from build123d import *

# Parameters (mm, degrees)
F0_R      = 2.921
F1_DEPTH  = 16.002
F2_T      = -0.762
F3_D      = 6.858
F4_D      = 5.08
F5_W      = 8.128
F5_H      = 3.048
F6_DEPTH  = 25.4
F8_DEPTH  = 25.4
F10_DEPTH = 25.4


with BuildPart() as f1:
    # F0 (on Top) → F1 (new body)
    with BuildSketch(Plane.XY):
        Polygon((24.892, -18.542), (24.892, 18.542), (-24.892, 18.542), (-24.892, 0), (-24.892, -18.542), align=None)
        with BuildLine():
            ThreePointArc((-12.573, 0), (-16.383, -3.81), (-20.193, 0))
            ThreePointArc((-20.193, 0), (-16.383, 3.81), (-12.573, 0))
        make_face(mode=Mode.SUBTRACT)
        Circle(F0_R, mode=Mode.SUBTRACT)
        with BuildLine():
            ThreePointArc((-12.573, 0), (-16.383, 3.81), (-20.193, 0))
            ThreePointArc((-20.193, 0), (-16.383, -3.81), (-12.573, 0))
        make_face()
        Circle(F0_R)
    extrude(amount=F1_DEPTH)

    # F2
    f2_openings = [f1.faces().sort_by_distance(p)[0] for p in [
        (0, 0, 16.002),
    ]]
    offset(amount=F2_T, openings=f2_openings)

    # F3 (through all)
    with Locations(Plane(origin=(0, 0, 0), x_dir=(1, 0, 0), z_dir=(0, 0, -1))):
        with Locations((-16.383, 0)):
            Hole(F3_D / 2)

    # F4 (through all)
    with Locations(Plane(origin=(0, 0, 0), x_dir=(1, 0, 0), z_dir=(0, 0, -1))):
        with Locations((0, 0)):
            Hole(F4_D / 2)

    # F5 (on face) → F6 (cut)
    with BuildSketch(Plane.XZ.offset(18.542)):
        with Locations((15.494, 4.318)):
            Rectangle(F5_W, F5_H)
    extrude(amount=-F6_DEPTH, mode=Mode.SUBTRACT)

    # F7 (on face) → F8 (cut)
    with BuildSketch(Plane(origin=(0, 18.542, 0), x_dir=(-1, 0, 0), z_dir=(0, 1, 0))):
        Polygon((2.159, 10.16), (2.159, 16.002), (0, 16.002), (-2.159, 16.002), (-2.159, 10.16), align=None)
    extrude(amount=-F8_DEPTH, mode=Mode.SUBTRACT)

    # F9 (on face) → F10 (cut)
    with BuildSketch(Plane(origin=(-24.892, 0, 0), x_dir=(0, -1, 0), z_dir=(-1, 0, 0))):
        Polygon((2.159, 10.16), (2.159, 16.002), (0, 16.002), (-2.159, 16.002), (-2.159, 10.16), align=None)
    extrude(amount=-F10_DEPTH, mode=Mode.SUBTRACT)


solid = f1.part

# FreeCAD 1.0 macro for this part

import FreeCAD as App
import Part
import Sketcher
Q = App.Units.Quantity


def faces_at(feature, points):
    """Names of the faces that lie closest to the given points."""
    faces = feature.Shape.Faces
    near = lambda p: min(range(len(faces)), key=lambda i: faces[i].distToShape(Part.Vertex(*p))[0])
    return sorted({f"Face{near(p) + 1}" for p in points})

doc = App.newDocument("Part")
body = doc.addObject("PartDesign::Body", "Body")

# Sketch on XY plane
sketch1 = body.newObject("Sketcher::SketchObject", "Sketch")
sketch1.AttachmentSupport = (doc.getObject("XY_Plane"), [""])
sketch1.MapMode = "FlatFace"
sketch1.addGeometry(Part.LineSegment(App.Vector(24.892, -18.542, 0), App.Vector(24.892, 18.542, 0)), False)
sketch1.addGeometry(Part.LineSegment(App.Vector(24.892, 18.542, 0), App.Vector(-24.892, 18.542, 0)), False)
sketch1.addGeometry(Part.LineSegment(App.Vector(-24.892, 18.542, 0), App.Vector(-24.892, -18.542, 0)), False)
sketch1.addGeometry(Part.LineSegment(App.Vector(-24.892, -18.542, 0), App.Vector(24.892, -18.542, 0)), False)
sketch1.addConstraint(Sketcher.Constraint("Coincident", 0, 2, 1, 1))
sketch1.addConstraint(Sketcher.Constraint("Coincident", 1, 2, 2, 1))
sketch1.addConstraint(Sketcher.Constraint("Coincident", 2, 2, 3, 1))
sketch1.addConstraint(Sketcher.Constraint("Coincident", 3, 2, 0, 1))
sketch1.addConstraint(Sketcher.Constraint("Vertical", 0))
sketch1.addConstraint(Sketcher.Constraint("Horizontal", 1))
sketch1.addConstraint(Sketcher.Constraint("Vertical", 2))
sketch1.addConstraint(Sketcher.Constraint("Horizontal", 3))
sketch1.addConstraint(Sketcher.Constraint("Symmetric", 0, 2, 2, 2, -1, 1))
sketch1.addConstraint(Sketcher.Constraint("DistanceX", 1, 2, 1, 1, Q("1.96 in")))
sketch1.addConstraint(Sketcher.Constraint("DistanceY", 0, 1, 0, 2, Q("1.46 in")))
pad1 = body.newObject("PartDesign::Pad", "Pad")
pad1.Profile = sketch1
pad1.Length = Q("0.63 in")
doc.recompute()

thickness = body.newObject("PartDesign::Thickness", "Thickness")
thickness.Base = (pad1, faces_at(pad1, [(0, 0, 16.002)]))
thickness.Value = Q("0.03 in")
thickness.Reversed = True
thickness.Join = "Arc"

# Sketch on XY plane
sketch2 = body.newObject("Sketcher::SketchObject", "Sketch001")
sketch2.AttachmentSupport = (doc.getObject("XY_Plane"), [""])
sketch2.MapMode = "FlatFace"
sketch2.addGeometry(Part.Circle(App.Vector(-16.383, 0, 0), App.Vector(0, 0, 1), 3.429), False)
sketch2.addConstraint(Sketcher.Constraint("PointOnObject", 0, 3, -1))
sketch2.addConstraint(Sketcher.Constraint("Diameter", 0, Q("0.27 in")))
sketch2.addConstraint(Sketcher.Constraint("DistanceX", 0, 3, -1, 1, Q("0.645 in")))
doc.recompute()
hole = body.newObject("PartDesign::Hole", "Hole")
hole.Profile = sketch2
hole.ThreadType = "None"
hole.Diameter = Q("0.27 in")
hole.DepthType = "ThroughAll"
hole.Reversed = True

# Sketch on XY plane
sketch3 = body.newObject("Sketcher::SketchObject", "Sketch002")
sketch3.AttachmentSupport = (doc.getObject("XY_Plane"), [""])
sketch3.MapMode = "FlatFace"
sketch3.addGeometry(Part.Circle(App.Vector(0, 0, 0), App.Vector(0, 0, 1), 2.54), False)
sketch3.addConstraint(Sketcher.Constraint("Coincident", 0, 3, -1, 1))
sketch3.addConstraint(Sketcher.Constraint("Diameter", 0, Q("0.2 in")))
doc.recompute()
hole2 = body.newObject("PartDesign::Hole", "Hole001")
hole2.Profile = sketch3
hole2.ThreadType = "None"
hole2.Diameter = Q("0.2 in")
hole2.DepthType = "ThroughAll"
hole2.Reversed = True

# Sketch on XZ plane
sketch4 = body.newObject("Sketcher::SketchObject", "Sketch003")
sketch4.AttachmentSupport = (doc.getObject("XZ_Plane"), [""])
sketch4.MapMode = "FlatFace"
sketch4.AttachmentOffset = App.Placement(App.Vector(0, 0, 0.73 * 25.4), App.Rotation())
sketch4.addGeometry(Part.LineSegment(App.Vector(11.43, 5.842, 0), App.Vector(11.43, 2.794, 0)), False)
sketch4.addGeometry(Part.LineSegment(App.Vector(11.43, 2.794, 0), App.Vector(19.558, 2.794, 0)), False)
sketch4.addGeometry(Part.LineSegment(App.Vector(19.558, 2.794, 0), App.Vector(19.558, 5.842, 0)), False)
sketch4.addGeometry(Part.LineSegment(App.Vector(19.558, 5.842, 0), App.Vector(11.43, 5.842, 0)), False)
sketch4.addConstraint(Sketcher.Constraint("Coincident", 0, 2, 1, 1))
sketch4.addConstraint(Sketcher.Constraint("Coincident", 1, 2, 2, 1))
sketch4.addConstraint(Sketcher.Constraint("Coincident", 2, 2, 3, 1))
sketch4.addConstraint(Sketcher.Constraint("Coincident", 3, 2, 0, 1))
sketch4.addConstraint(Sketcher.Constraint("Vertical", 0))
sketch4.addConstraint(Sketcher.Constraint("Horizontal", 1))
sketch4.addConstraint(Sketcher.Constraint("Vertical", 2))
sketch4.addConstraint(Sketcher.Constraint("Horizontal", 3))
sketch4.addConstraint(Sketcher.Constraint("DistanceX", 1, 1, 1, 2, Q("0.32 in")))
sketch4.addConstraint(Sketcher.Constraint("DistanceY", 0, 2, 0, 1, Q("0.12 in")))
sketch4.addConstraint(Sketcher.Constraint("DistanceX", -1, 1, 0, 2, Q("0.45 in")))
sketch4.addConstraint(Sketcher.Constraint("DistanceY", -1, 1, 0, 2, Q("0.11 in")))
pocket1 = body.newObject("PartDesign::Pocket", "Pocket")
pocket1.Profile = sketch4
pocket1.Length = Q("1 in")

# Sketch on XZ plane
sketch5 = body.newObject("Sketcher::SketchObject", "Sketch004")
sketch5.AttachmentSupport = (doc.getObject("XZ_Plane"), [""])
sketch5.MapMode = "FlatFace"
sketch5.AttachmentOffset = App.Placement(App.Vector(0, 0, -0.73 * 25.4), App.Rotation())
sketch5.addGeometry(Part.LineSegment(App.Vector(-2.159, 10.16, 0), App.Vector(-2.159, 16.002, 0)), False)
sketch5.addGeometry(Part.LineSegment(App.Vector(-2.159, 16.002, 0), App.Vector(2.159, 16.002, 0)), False)
sketch5.addGeometry(Part.LineSegment(App.Vector(2.159, 16.002, 0), App.Vector(2.159, 10.16, 0)), False)
sketch5.addGeometry(Part.LineSegment(App.Vector(2.159, 10.16, 0), App.Vector(-2.159, 10.16, 0)), False)
sketch5.addConstraint(Sketcher.Constraint("Coincident", 0, 2, 1, 1))
sketch5.addConstraint(Sketcher.Constraint("Coincident", 1, 2, 2, 1))
sketch5.addConstraint(Sketcher.Constraint("Coincident", 2, 2, 3, 1))
sketch5.addConstraint(Sketcher.Constraint("Coincident", 3, 2, 0, 1))
sketch5.addConstraint(Sketcher.Constraint("Vertical", 0))
sketch5.addConstraint(Sketcher.Constraint("Horizontal", 1))
sketch5.addConstraint(Sketcher.Constraint("Vertical", 2))
sketch5.addConstraint(Sketcher.Constraint("Horizontal", 3))
sketch5.addConstraint(Sketcher.Constraint("DistanceX", 1, 1, 1, 2, Q("0.17 in")))
sketch5.addConstraint(Sketcher.Constraint("DistanceY", 0, 1, 0, 2, Q("0.23 in")))
sketch5.addConstraint(Sketcher.Constraint("DistanceY", -1, 1, 2, 2, Q("0.4 in")))
sketch5.addConstraint(Sketcher.Constraint("DistanceX", 0, 2, -1, 1, Q("0.085 in")))
pocket2 = body.newObject("PartDesign::Pocket", "Pocket001")
pocket2.Profile = sketch5
pocket2.Length = Q("1 in")
pocket2.Reversed = True

# Sketch on YZ plane
sketch6 = body.newObject("Sketcher::SketchObject", "Sketch005")
sketch6.AttachmentSupport = (doc.getObject("YZ_Plane"), [""])
sketch6.MapMode = "FlatFace"
sketch6.AttachmentOffset = App.Placement(App.Vector(0, 0, -0.98 * 25.4), App.Rotation())
sketch6.addGeometry(Part.LineSegment(App.Vector(-2.159, 10.16, 0), App.Vector(-2.159, 16.002, 0)), False)
sketch6.addGeometry(Part.LineSegment(App.Vector(-2.159, 16.002, 0), App.Vector(2.159, 16.002, 0)), False)
sketch6.addGeometry(Part.LineSegment(App.Vector(2.159, 16.002, 0), App.Vector(2.159, 10.16, 0)), False)
sketch6.addGeometry(Part.LineSegment(App.Vector(2.159, 10.16, 0), App.Vector(-2.159, 10.16, 0)), False)
sketch6.addConstraint(Sketcher.Constraint("Coincident", 0, 2, 1, 1))
sketch6.addConstraint(Sketcher.Constraint("Coincident", 1, 2, 2, 1))
sketch6.addConstraint(Sketcher.Constraint("Coincident", 2, 2, 3, 1))
sketch6.addConstraint(Sketcher.Constraint("Coincident", 3, 2, 0, 1))
sketch6.addConstraint(Sketcher.Constraint("Vertical", 0))
sketch6.addConstraint(Sketcher.Constraint("Horizontal", 1))
sketch6.addConstraint(Sketcher.Constraint("Vertical", 2))
sketch6.addConstraint(Sketcher.Constraint("Horizontal", 3))
sketch6.addConstraint(Sketcher.Constraint("DistanceX", 1, 1, 1, 2, Q("0.17 in")))
sketch6.addConstraint(Sketcher.Constraint("DistanceY", 0, 1, 0, 2, Q("0.23 in")))
sketch6.addConstraint(Sketcher.Constraint("DistanceY", -1, 1, 2, 2, Q("0.4 in")))
sketch6.addConstraint(Sketcher.Constraint("DistanceX", 0, 2, -1, 1, Q("0.085 in")))
pocket3 = body.newObject("PartDesign::Pocket", "Pocket002")
pocket3.Profile = sketch6
pocket3.Length = Q("1 in")
pocket3.Reversed = True

doc.recompute()
